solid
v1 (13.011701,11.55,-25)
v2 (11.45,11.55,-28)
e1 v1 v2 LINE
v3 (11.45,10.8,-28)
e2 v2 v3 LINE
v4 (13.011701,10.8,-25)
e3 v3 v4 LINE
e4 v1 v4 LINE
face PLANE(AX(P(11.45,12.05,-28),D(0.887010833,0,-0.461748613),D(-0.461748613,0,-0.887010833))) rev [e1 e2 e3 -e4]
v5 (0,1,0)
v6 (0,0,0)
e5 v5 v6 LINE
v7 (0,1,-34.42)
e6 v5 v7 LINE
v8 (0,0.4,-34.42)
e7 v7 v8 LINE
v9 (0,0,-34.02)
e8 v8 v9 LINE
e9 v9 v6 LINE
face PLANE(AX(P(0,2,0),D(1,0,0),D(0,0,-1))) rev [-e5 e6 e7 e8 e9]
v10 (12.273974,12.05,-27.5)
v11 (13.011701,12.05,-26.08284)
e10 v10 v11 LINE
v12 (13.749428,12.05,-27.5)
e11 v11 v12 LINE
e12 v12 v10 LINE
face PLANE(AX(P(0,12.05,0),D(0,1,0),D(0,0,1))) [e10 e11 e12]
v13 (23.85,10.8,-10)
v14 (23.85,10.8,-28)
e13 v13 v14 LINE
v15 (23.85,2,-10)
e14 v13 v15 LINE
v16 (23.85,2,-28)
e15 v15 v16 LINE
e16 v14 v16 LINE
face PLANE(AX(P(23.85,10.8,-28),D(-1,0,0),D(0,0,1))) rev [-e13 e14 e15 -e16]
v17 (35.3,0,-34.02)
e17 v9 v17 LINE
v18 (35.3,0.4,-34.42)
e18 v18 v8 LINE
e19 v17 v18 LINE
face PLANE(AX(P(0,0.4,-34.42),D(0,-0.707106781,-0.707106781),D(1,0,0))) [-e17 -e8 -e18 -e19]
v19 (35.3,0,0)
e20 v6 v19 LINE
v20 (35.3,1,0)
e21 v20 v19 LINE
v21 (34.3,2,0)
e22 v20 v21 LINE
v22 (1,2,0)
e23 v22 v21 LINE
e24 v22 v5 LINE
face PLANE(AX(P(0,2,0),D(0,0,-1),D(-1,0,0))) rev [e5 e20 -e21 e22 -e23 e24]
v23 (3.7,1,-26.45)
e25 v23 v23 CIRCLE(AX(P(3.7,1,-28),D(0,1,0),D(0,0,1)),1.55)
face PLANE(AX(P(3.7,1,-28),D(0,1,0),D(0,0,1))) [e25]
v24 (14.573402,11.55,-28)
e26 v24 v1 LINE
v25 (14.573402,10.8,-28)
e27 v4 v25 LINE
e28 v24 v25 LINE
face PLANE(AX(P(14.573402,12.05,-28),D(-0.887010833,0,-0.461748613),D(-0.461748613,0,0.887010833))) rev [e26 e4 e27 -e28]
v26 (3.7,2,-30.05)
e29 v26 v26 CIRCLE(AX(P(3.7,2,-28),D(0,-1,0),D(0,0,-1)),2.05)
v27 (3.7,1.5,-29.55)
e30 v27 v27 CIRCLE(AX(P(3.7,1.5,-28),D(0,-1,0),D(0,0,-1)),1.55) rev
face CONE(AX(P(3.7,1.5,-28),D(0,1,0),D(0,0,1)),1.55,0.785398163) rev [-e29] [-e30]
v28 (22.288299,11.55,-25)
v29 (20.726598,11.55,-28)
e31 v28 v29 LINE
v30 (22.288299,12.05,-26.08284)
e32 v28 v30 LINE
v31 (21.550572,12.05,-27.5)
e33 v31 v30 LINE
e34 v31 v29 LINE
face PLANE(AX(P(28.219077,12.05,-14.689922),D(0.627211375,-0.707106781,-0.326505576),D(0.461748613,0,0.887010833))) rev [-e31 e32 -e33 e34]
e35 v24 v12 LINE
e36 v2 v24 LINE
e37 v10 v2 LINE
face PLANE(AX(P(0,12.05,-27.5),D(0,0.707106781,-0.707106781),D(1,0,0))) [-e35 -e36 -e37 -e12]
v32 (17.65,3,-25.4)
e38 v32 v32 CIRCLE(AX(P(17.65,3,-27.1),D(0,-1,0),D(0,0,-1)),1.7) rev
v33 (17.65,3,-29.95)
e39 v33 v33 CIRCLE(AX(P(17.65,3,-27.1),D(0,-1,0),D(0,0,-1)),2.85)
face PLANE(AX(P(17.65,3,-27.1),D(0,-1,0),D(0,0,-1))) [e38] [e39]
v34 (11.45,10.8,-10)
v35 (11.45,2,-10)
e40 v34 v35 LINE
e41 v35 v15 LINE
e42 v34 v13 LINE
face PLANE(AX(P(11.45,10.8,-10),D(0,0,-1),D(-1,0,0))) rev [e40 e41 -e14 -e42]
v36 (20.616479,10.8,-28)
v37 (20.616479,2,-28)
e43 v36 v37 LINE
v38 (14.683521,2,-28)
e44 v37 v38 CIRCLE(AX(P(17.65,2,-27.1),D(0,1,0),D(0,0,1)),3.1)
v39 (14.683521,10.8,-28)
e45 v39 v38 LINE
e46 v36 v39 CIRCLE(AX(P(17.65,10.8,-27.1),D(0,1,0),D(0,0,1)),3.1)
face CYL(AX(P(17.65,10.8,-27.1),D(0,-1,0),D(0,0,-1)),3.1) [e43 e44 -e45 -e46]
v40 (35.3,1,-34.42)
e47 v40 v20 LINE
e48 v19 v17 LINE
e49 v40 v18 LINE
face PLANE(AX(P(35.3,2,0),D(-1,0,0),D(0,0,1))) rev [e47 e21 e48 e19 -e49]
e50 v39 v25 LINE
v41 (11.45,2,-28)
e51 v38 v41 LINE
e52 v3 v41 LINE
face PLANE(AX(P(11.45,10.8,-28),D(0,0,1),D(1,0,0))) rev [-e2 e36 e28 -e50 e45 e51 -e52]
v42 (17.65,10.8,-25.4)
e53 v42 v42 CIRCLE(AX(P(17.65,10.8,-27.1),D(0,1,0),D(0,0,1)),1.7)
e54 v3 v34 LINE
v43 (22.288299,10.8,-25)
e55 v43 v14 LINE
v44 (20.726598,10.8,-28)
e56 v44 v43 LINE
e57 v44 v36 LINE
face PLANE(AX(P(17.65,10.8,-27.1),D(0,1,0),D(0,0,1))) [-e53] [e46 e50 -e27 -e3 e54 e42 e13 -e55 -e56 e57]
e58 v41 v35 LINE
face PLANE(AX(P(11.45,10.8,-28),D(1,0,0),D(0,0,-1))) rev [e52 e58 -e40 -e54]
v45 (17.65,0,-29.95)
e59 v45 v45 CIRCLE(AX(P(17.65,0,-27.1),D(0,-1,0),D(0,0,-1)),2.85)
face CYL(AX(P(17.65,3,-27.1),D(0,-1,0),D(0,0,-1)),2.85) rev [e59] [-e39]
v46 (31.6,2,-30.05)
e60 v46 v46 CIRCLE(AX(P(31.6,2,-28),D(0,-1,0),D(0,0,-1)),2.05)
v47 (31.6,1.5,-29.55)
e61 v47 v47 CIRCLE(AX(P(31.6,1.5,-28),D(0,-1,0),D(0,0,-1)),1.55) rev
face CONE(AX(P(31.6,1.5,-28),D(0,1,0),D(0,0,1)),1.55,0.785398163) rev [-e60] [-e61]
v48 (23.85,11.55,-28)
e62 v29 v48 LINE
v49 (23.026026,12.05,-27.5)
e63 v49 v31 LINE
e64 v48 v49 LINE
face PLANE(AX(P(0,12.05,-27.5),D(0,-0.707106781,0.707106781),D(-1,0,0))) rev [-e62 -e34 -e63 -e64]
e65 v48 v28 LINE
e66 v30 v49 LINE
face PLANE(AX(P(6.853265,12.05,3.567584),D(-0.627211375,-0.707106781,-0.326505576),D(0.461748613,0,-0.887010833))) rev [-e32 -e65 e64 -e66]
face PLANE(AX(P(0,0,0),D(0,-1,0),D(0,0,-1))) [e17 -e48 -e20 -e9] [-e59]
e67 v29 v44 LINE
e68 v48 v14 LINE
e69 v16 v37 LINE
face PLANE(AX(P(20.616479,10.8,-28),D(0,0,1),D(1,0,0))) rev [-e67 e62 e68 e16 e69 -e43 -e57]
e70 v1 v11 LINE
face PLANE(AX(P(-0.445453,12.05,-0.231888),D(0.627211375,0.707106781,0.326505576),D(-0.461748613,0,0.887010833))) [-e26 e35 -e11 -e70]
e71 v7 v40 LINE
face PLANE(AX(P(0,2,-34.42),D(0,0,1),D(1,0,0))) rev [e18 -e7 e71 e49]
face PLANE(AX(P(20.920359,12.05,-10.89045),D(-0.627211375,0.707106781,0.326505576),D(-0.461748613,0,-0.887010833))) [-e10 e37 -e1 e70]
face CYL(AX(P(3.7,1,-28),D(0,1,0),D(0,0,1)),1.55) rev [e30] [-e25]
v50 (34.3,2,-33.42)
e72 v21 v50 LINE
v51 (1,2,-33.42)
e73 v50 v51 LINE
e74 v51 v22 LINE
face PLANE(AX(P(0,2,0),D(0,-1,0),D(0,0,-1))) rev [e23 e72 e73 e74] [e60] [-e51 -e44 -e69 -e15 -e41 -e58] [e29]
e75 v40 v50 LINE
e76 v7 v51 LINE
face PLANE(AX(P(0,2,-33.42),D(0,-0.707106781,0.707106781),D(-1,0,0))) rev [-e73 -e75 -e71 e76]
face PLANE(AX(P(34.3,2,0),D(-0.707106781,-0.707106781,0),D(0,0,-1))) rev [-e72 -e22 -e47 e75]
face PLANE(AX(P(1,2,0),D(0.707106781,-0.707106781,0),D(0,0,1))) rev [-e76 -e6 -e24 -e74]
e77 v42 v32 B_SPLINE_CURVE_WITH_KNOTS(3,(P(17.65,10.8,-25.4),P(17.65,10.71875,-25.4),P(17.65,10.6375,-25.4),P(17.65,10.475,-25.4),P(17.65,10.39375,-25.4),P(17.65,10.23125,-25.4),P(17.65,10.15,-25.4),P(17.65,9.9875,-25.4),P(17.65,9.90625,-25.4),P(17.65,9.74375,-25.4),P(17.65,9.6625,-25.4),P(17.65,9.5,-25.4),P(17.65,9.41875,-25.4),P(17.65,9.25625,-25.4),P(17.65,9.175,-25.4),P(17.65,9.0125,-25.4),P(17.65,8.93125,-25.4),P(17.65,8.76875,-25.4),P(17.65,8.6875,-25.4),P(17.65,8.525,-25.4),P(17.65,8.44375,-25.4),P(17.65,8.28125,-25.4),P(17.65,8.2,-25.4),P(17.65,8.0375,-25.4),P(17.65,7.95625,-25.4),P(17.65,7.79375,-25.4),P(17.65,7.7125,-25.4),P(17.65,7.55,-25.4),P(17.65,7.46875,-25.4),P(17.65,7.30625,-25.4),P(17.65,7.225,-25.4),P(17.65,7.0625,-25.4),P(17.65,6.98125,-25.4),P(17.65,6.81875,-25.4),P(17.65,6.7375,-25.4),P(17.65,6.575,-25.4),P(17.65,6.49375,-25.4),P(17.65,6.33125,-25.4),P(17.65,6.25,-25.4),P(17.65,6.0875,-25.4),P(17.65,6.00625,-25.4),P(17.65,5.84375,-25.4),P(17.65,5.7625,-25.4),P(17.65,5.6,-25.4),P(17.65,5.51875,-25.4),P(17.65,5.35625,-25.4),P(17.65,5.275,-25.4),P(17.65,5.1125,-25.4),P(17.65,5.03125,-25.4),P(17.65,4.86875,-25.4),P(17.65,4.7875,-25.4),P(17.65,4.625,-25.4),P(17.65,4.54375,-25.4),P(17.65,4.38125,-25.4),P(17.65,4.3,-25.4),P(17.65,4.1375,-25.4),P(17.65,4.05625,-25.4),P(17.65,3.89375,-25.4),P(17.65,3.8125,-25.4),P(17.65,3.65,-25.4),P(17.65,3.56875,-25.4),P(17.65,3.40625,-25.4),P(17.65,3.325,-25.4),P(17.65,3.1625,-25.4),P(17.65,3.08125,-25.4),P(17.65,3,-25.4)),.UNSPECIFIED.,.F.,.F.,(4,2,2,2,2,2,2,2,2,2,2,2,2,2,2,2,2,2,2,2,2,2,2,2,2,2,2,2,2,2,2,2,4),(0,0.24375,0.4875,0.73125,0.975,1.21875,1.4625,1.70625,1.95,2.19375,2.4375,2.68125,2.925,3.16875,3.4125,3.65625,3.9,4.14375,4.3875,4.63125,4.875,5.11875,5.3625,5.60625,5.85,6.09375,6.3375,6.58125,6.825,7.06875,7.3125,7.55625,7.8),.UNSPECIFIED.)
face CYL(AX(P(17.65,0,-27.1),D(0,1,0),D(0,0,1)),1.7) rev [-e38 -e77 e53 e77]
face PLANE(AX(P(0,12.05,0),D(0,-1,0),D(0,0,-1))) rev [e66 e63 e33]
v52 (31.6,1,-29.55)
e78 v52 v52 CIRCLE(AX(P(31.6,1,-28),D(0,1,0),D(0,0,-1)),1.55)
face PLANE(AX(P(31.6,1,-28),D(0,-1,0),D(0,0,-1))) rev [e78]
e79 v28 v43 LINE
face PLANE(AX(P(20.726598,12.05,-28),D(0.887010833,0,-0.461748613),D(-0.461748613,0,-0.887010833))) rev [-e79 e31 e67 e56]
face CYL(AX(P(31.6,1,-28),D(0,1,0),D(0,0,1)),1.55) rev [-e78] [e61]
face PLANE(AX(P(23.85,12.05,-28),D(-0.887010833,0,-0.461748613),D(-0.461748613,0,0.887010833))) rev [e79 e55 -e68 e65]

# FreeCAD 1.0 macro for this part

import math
import FreeCAD as App
import Part
import Sketcher

V = App.Vector
Q = App.Units.Quantity


def edges_at(feature, points):
    """Names of the edges that pass closest to the given points."""
    edges = feature.Shape.Edges
    near = lambda p: min(range(len(edges)), key=lambda i: edges[i].distToShape(Part.Vertex(*p))[0])
    return sorted({f"Edge{near(p) + 1}" for p in points})

doc = App.newDocument("Part")
body = doc.addObject("PartDesign::Body", "Body")

sketch1 = body.newObject("Sketcher::SketchObject", "Sketch")
sketch1.AttachmentSupport = (doc.getObject("XZ_Plane"), [""])
sketch1.MapMode = "FlatFace"
sketch1.addGeometry([
    Part.LineSegment(V(0, -34.42, 0), V(0, 0, 0)),
    Part.LineSegment(V(0, 0, 0), V(35.3, 0, 0)),
    Part.LineSegment(V(35.3, 0, 0), V(35.3, -34.42, 0)),
    Part.LineSegment(V(35.3, -34.42, 0), V(0, -34.42, 0)),
], False)
sketch1.addConstraint([
    Sketcher.Constraint("Coincident", 0, 2, 1, 1),
    Sketcher.Constraint("Coincident", 1, 2, 2, 1),
    Sketcher.Constraint("Coincident", 2, 2, 3, 1),
    Sketcher.Constraint("Coincident", 3, 2, 0, 1),
    Sketcher.Constraint("Vertical", 0),
    Sketcher.Constraint("Horizontal", 1),
    Sketcher.Constraint("Vertical", 2),
    Sketcher.Constraint("Horizontal", 3),
    Sketcher.Constraint("Coincident", 0, 2, -1, 1),
    Sketcher.Constraint("DistanceX", 1, 1, 1, 2, 35.3),
    Sketcher.Constraint("DistanceY", 0, 1, 0, 2, 34.42),
])
pad1 = body.newObject("PartDesign::Pad", "Pad")
pad1.Profile = sketch1
pad1.Length = 2
pad1.Reversed = True

sketch2 = body.newObject("Sketcher::SketchObject", "Sketch001")
sketch2.AttachmentSupport = (doc.getObject("XZ_Plane"), [""])
sketch2.MapMode = "FlatFace"
sketch2.AttachmentOffset = App.Placement(V(0, 0, -2), App.Rotation())
sketch2.addGeometry([
    Part.LineSegment(V(14.683521, -28, 0), V(11.45, -28, 0)),
    Part.LineSegment(V(11.45, -28, 0), V(11.45, -10, 0)),
    Part.LineSegment(V(11.45, -10, 0), V(23.85, -10, 0)),
    Part.LineSegment(V(23.85, -10, 0), V(23.85, -28, 0)),
    Part.LineSegment(V(23.85, -28, 0), V(20.616479, -28, 0)),
    Part.ArcOfCircle(Part.Circle(V(17.65, -27.1, 0), V(0, 0, 1), 3.1), math.radians(-163.122731), math.radians(-16.877269)),
], False)
sketch2.addConstraint([
    Sketcher.Constraint("Coincident", 0, 2, 1, 1),
    Sketcher.Constraint("Coincident", 1, 2, 2, 1),
    Sketcher.Constraint("Coincident", 2, 2, 3, 1),
    Sketcher.Constraint("Coincident", 3, 2, 4, 1),
    Sketcher.Constraint("Coincident", 4, 2, 5, 2),
    Sketcher.Constraint("Coincident", 5, 1, 0, 1),
    Sketcher.Constraint("Horizontal", 0),
    Sketcher.Constraint("Vertical", 1),
    Sketcher.Constraint("Horizontal", 2),
    Sketcher.Constraint("Vertical", 3),
    Sketcher.Constraint("Horizontal", 4),
    Sketcher.Constraint("Horizontal", 0, 2, 3, 2),
    Sketcher.Constraint("Equal", 0, 4),
    Sketcher.Constraint("Radius", 5, 3.1),
    Sketcher.Constraint("DistanceY", 1, 1, 1, 2, 18.0),
    Sketcher.Constraint("DistanceX", 2, 1, 2, 2, 12.4),
    Sketcher.Constraint("DistanceY", 0, 2, -1, 1, 28.0),
    Sketcher.Constraint("DistanceY", 5, 3, -1, 1, 27.1),
    Sketcher.Constraint("DistanceX", -1, 1, 5, 3, 17.65),
])
pad2 = body.newObject("PartDesign::Pad", "Pad001")
pad2.Profile = sketch2
pad2.Length = 8.8
pad2.Reversed = True

sketch3 = body.newObject("Sketcher::SketchObject", "Sketch002")
sketch3.AttachmentSupport = (doc.getObject("XZ_Plane"), [""])
sketch3.MapMode = "FlatFace"
sketch3.AttachmentOffset = App.Placement(V(0, 0, -2), App.Rotation())
sketch3.addGeometry([
    Part.Circle(V(3.7, -28, 0), V(0, 0, 1), 1.55),
    Part.Circle(V(31.6, -28, 0), V(0, 0, 1), 1.55),
], False)
sketch3.addConstraint([
    Sketcher.Constraint("Equal", 0, 1),
    Sketcher.Constraint("Horizontal", 0, 3, 1, 3),
    Sketcher.Constraint("Diameter", 0, 3.1),
    Sketcher.Constraint("DistanceY", 0, 3, -1, 1, 28.0),
    Sketcher.Constraint("DistanceX", -1, 1, 0, 3, 3.7),
    Sketcher.Constraint("DistanceX", -1, 1, 1, 3, 31.6),
])
pocket1 = body.newObject("PartDesign::Pocket", "Pocket")
pocket1.Profile = sketch3
pocket1.Length = 1
pocket1.Reversed = True
doc.recompute()

chamfer = body.newObject("PartDesign::Chamfer", "Chamfer")
chamfer.Base = (pocket1, edges_at(pocket1, [(3.7, 2, -29.55), (31.6, 2, -26.45)]))
chamfer.Size = 0.5

sketch4 = body.newObject("Sketcher::SketchObject", "Sketch003")
sketch4.AttachmentSupport = (doc.getObject("XZ_Plane"), [""])
sketch4.MapMode = "FlatFace"
sketch4.AttachmentOffset = App.Placement(V(0, 0, -10.8), App.Rotation())
sketch4.addGeometry([
    Part.LineSegment(V(13.011701, -25, 0), V(14.573402, -28, 0)),
    Part.LineSegment(V(14.573402, -28, 0), V(11.45, -28, 0)),
    Part.LineSegment(V(11.45, -28, 0), V(13.011701, -25, 0)),
    Part.LineSegment(V(22.288299, -25, 0), V(23.85, -28, 0)),
    Part.LineSegment(V(23.85, -28, 0), V(20.726598, -28, 0)),
    Part.LineSegment(V(20.726598, -28, 0), V(22.288299, -25, 0)),
], False)
sketch4.addConstraint([
    Sketcher.Constraint("Coincident", 0, 2, 1, 1),
    Sketcher.Constraint("Coincident", 1, 2, 2, 1),
    Sketcher.Constraint("Coincident", 2, 2, 0, 1),
    Sketcher.Constraint("Coincident", 3, 2, 4, 1),
    Sketcher.Constraint("Coincident", 4, 2, 5, 1),
    Sketcher.Constraint("Coincident", 5, 2, 3, 1),
    Sketcher.Constraint("Horizontal", 1),
    Sketcher.Constraint("Horizontal", 4),
    Sketcher.Constraint("Parallel", 0, 3),
    Sketcher.Constraint("Parallel", 2, 5),
    Sketcher.Constraint("Horizontal", 1, 2, 3, 2),
    Sketcher.Constraint("Horizontal", 2, 2, 5, 2),
    Sketcher.Constraint("Equal", 0, 2),
    Sketcher.Constraint("DistanceY", 0, 2, -1, 1, 28.0),
    Sketcher.Constraint("DistanceY", 2, 2, -1, 1, 25.0),
    Sketcher.Constraint("Angle", 0, Q("-62.5 deg")),
    Sketcher.Constraint("DistanceX", 1, 2, 3, 2, 12.4),
    Sketcher.Constraint("DistanceX", -1, 1, 1, 2, 11.45),
])
pad3 = body.newObject("PartDesign::Pad", "Pad002")
pad3.Profile = sketch4
pad3.Length = 1.25
pad3.Reversed = True

sketch5 = body.newObject("Sketcher::SketchObject", "Sketch004")
sketch5.AttachmentSupport = (doc.getObject("XZ_Plane"), [""])
sketch5.MapMode = "FlatFace"
sketch5.AttachmentOffset = App.Placement(V(0, 0, -10.8), App.Rotation())
sketch5.addGeometry(Part.Circle(V(17.65, -27.1, 0), V(0, 0, 1), 1.7), False)
sketch5.addConstraint([
    Sketcher.Constraint("Diameter", 0, 3.4),
    Sketcher.Constraint("DistanceY", 0, 3, -1, 1, 27.1),
    Sketcher.Constraint("DistanceX", -1, 1, 0, 3, 17.65),
])
pocket2 = body.newObject("PartDesign::Pocket", "Pocket001")
pocket2.Profile = sketch5
pocket2.Type = "ThroughAll"
pocket2.Reversed = True

sketch6 = body.newObject("Sketcher::SketchObject", "Sketch005")
sketch6.AttachmentSupport = (doc.getObject("XZ_Plane"), [""])
sketch6.MapMode = "FlatFace"
sketch6.addGeometry(Part.Circle(V(17.65, -27.1, 0), V(0, 0, 1), 2.85), False)
sketch6.addConstraint([
    Sketcher.Constraint("Diameter", 0, 5.7),
    Sketcher.Constraint("DistanceY", 0, 3, -1, 1, 27.1),
    Sketcher.Constraint("DistanceX", -1, 1, 0, 3, 17.65),
])
pocket3 = body.newObject("PartDesign::Pocket", "Pocket002")
pocket3.Profile = sketch6
pocket3.Length = 3
doc.recompute()

chamfer2 = body.newObject("PartDesign::Chamfer", "Chamfer001")
chamfer2.Base = (pocket3, edges_at(pocket3, [
    (22.288, 12.05, -28),
    (21.507, 12.05, -26.5),
    (23.069, 12.05, -26.5),
    (13.012, 12.05, -28),
    (12.231, 12.05, -26.5),
    (13.793, 12.05, -26.5),
]))
chamfer2.Size = 0.5
doc.recompute()

chamfer3 = body.newObject("PartDesign::Chamfer", "Chamfer002")
chamfer3.Base = (chamfer2, edges_at(chamfer2, [(35.3, 2, -17.21), (17.65, 2, -34.42), (0, 2, -17.21)]))
chamfer3.Size = 1
doc.recompute()

chamfer4 = body.newObject("PartDesign::Chamfer", "Chamfer003")
chamfer4.Base = (chamfer3, edges_at(chamfer3, [(17.65, 0, -34.42)]))
chamfer4.Size = 0.4

doc.recompute()
